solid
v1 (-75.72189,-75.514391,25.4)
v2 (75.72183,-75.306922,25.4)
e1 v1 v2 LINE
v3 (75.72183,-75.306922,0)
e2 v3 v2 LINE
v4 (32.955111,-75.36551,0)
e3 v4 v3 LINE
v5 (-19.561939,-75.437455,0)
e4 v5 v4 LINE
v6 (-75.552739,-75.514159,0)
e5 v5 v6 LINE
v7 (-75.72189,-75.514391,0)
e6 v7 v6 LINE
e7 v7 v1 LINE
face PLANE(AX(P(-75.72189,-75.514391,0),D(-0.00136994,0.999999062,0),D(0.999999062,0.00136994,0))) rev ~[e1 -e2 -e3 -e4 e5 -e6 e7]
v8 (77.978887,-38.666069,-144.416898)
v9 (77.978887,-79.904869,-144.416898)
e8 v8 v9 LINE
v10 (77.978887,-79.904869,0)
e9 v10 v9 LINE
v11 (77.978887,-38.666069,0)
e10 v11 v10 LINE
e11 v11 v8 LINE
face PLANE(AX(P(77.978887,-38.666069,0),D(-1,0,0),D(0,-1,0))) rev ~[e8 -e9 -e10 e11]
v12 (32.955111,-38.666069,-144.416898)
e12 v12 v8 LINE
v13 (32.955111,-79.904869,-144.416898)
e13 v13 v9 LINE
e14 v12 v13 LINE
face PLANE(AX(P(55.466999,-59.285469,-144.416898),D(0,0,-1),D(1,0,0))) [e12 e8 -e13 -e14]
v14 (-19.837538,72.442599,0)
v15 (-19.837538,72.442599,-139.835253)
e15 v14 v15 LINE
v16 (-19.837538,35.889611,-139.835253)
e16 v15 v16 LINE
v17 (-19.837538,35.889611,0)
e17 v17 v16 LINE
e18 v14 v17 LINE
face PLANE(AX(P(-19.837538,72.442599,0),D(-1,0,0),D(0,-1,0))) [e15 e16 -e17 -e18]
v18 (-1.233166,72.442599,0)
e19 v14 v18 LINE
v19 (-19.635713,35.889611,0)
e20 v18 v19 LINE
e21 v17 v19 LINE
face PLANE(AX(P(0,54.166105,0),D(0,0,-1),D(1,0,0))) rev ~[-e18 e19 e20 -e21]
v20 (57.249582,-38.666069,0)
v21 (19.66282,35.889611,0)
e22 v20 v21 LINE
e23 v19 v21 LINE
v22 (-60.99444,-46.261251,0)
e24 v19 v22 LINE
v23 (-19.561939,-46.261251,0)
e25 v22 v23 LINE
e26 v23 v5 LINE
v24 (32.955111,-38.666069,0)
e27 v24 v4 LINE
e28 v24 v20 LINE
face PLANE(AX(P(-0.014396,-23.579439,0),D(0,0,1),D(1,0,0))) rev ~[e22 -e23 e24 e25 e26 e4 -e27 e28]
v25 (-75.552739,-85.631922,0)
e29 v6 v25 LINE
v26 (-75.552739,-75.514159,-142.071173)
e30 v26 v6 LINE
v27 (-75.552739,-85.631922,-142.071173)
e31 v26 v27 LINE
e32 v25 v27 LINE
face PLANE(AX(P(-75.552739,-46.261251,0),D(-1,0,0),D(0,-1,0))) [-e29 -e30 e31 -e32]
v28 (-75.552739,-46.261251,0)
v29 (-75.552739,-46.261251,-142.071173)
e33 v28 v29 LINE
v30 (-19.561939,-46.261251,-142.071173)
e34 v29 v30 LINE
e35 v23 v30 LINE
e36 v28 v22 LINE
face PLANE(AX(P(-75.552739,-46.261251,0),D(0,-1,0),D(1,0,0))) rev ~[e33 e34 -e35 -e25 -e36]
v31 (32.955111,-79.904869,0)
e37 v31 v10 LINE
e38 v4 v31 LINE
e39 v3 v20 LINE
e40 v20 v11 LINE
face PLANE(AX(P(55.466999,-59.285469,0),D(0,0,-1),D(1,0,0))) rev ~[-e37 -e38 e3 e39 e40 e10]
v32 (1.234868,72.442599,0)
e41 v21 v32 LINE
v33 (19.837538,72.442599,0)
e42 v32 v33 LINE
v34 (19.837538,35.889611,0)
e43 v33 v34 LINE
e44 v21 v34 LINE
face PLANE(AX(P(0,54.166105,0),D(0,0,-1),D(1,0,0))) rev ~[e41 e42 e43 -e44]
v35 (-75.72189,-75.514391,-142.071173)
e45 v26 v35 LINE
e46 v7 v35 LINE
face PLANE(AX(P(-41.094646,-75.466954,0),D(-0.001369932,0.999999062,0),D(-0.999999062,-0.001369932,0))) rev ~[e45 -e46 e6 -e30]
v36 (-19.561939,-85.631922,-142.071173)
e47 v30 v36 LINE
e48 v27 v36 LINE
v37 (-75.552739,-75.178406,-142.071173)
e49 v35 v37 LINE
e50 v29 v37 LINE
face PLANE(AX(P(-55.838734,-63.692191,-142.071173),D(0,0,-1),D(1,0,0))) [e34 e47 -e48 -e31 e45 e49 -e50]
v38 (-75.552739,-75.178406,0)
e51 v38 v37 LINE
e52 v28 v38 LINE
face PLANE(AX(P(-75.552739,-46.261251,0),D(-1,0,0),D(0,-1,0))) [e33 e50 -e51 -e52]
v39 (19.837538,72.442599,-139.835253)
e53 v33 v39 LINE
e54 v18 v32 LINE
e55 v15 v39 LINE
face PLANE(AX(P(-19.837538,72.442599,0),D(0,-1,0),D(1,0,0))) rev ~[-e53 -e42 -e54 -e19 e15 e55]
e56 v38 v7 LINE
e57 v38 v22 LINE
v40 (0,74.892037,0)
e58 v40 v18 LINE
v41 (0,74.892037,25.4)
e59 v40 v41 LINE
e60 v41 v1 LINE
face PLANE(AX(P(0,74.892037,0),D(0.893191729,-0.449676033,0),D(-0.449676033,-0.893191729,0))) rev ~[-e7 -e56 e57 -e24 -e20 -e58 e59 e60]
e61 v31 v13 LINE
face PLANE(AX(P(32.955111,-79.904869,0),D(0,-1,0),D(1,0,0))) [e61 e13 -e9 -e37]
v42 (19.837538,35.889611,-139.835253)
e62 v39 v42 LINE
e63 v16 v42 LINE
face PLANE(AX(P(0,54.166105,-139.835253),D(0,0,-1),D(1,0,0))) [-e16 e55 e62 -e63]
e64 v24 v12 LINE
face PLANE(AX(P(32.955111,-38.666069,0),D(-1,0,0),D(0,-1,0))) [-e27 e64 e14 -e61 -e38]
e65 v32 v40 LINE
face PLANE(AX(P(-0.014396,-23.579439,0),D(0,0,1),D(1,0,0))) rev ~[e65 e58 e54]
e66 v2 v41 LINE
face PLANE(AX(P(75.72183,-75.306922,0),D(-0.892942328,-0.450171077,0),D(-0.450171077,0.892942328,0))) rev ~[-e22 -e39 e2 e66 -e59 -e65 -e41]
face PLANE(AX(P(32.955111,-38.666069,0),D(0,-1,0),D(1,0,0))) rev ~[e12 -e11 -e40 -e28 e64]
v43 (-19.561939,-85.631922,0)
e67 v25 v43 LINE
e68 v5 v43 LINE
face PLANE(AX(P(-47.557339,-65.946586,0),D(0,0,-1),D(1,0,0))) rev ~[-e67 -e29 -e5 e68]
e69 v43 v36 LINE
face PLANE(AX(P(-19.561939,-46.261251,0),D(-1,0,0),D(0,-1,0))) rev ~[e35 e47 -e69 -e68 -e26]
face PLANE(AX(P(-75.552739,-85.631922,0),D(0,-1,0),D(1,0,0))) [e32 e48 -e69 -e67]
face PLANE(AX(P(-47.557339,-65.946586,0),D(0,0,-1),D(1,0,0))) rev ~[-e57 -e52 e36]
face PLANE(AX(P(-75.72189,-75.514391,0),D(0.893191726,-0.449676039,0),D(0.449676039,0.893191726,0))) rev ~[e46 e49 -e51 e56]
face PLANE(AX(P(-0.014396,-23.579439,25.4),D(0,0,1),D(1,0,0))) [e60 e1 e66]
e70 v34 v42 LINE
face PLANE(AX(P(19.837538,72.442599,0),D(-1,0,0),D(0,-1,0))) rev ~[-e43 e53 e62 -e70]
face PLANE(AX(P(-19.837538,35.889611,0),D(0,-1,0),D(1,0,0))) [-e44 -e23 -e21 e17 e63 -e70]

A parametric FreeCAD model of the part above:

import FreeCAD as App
import Part
import Sketcher
from FreeCAD import Vector


def add_polygon(sketch, points):
    """Adds a closed chain of lines whose ends are joined by coincident constraints."""
    first, n = sketch.GeometryCount, len(points)
    for a, b in zip(points, points[1:] + points[:1]):
        sketch.addGeometry(Part.LineSegment(App.Vector(*a, 0), App.Vector(*b, 0)), False)
    for i in range(n):
        sketch.addConstraint(Sketcher.Constraint("Coincident", first + i, 2, first + (i + 1) % n, 1))

doc = App.newDocument("Part")
params = doc.addObject("Spreadsheet::Sheet", "Params")
for row, (alias, value) in enumerate([
    ("pad1_length", "1 in"),
    ("pad2_length", "142.071173 mm"),
    ("pad3_length", "139.835253 mm"),
    ("pad4_length", "144.416898 mm"),
], start=1):
    params.set(f"A{row}", alias)
    params.set(f"B{row}", "=" + value)
    params.setAlias(f"B{row}", alias)

body = doc.addObject("PartDesign::Body", "Body")

sketch1 = body.newObject("Sketcher::SketchObject", "Sketch")
sketch1.AttachmentSupport = (doc.getObject("XY_Plane"), [""])
sketch1.MapMode = "FlatFace"
add_polygon(sketch1, [(0, 75), (-76, -76), (76, -75)])
sketch1.addConstraint([
    Sketcher.Constraint("PointOnObject", 2, 2, -2),
    Sketcher.Constraint("DistanceX", 0, 2, -1, 1, 75.72189),
    Sketcher.Constraint("DistanceY", 0, 2, -1, 1, 75.514391),
    Sketcher.Constraint("DistanceX", -1, 1, 1, 2, 75.72183),
    Sketcher.Constraint("DistanceY", 1, 2, -1, 1, 75.306922),
    Sketcher.Constraint("DistanceY", 1, 2, 2, 2, 150.198959),
])
pad1 = body.newObject("PartDesign::Pad", "Pad")
pad1.Profile = sketch1
pad1.setExpression("Length", "Params.pad1_length")

sketch2 = body.newObject("Sketcher::SketchObject", "Sketch001")
sketch2.AttachmentSupport = (doc.getObject("XY_Plane"), [""])
sketch2.MapMode = "FlatFace"
add_polygon(sketch2, [(-75.55, -75.18), (-75.55, -46.26), (-19.56, -46.26), (-19.56, -85.63), (-75.55, -85.63), (-75.55, -75.51), (-75.72, -75.51)])
sketch2.addConstraint([
    Sketcher.Constraint("Vertical", 0),
    Sketcher.Constraint("Horizontal", 1),
    Sketcher.Constraint("Vertical", 2),
    Sketcher.Constraint("Horizontal", 3),
    Sketcher.Constraint("Vertical", 4),
    Sketcher.Constraint("Vertical", 0, 2, 3, 2),
    Sketcher.Constraint("DistanceX", 1, 1, 1, 2, 55.9908),
    Sketcher.Constraint("DistanceY", 2, 2, 2, 1, 39.370671),
    Sketcher.Constraint("Distance", 5, 0.169151),
    Sketcher.Constraint("Distance", 6, 0.376162),
    Sketcher.Constraint("DistanceY", 0, 1, 0, 2, 28.917156),
    Sketcher.Constraint("DistanceY", 4, 1, 4, 2, 10.117762),
    Sketcher.Constraint("DistanceX", 0, 2, -1, 1, 75.552739),
    Sketcher.Constraint("DistanceY", 0, 2, -1, 1, 46.261251),
])
pad2 = body.newObject("PartDesign::Pad", "Pad001")
pad2.Profile = sketch2
pad2.setExpression("Length", "Params.pad2_length")
pad2.Reversed = True

sketch3 = body.newObject("Sketcher::SketchObject", "Sketch002")
sketch3.AttachmentSupport = (doc.getObject("XY_Plane"), [""])
sketch3.MapMode = "FlatFace"
add_polygon(sketch3, [(-20, 36), (-20, 72), (20, 72), (20, 36)])
sketch3.addConstraint([
    Sketcher.Constraint("Vertical", 0),
    Sketcher.Constraint("Horizontal", 1),
    Sketcher.Constraint("Vertical", 2),
    Sketcher.Constraint("Horizontal", 3),
    Sketcher.Constraint("DistanceY", -1, 1, 0, 2, 72.442599),
    Sketcher.Constraint("DistanceX", 1, 1, 1, 2, 39.675076),
    Sketcher.Constraint("DistanceY", 0, 1, 0, 2, 36.552988),
    Sketcher.Constraint("DistanceX", 0, 2, -1, 1, 19.837538),
])
pad3 = body.newObject("PartDesign::Pad", "Pad002")
pad3.Profile = sketch3
pad3.setExpression("Length", "Params.pad3_length")
pad3.Reversed = True

sketch4 = body.newObject("Sketcher::SketchObject", "Sketch003")
sketch4.AttachmentSupport = (doc.getObject("XY_Plane"), [""])
sketch4.MapMode = "FlatFace"
add_polygon(sketch4, [(33, -80), (33, -39), (78, -39), (78, -80)])
sketch4.addConstraint([
    Sketcher.Constraint("Vertical", 0),
    Sketcher.Constraint("Horizontal", 1),
    Sketcher.Constraint("Vertical", 2),
    Sketcher.Constraint("Horizontal", 3),
    Sketcher.Constraint("DistanceY", 0, 1, 0, 2, 41.238799),
    Sketcher.Constraint("DistanceX", 1, 1, 1, 2, 45.023777),
    Sketcher.Constraint("DistanceX", -1, 1, 0, 2, 32.955111),
    Sketcher.Constraint("DistanceY", 0, 2, -1, 1, 38.666069),
])
pad4 = body.newObject("PartDesign::Pad", "Pad003")
pad4.Profile = sketch4
pad4.setExpression("Length", "Params.pad4_length")
pad4.Reversed = True

doc.recompute()
